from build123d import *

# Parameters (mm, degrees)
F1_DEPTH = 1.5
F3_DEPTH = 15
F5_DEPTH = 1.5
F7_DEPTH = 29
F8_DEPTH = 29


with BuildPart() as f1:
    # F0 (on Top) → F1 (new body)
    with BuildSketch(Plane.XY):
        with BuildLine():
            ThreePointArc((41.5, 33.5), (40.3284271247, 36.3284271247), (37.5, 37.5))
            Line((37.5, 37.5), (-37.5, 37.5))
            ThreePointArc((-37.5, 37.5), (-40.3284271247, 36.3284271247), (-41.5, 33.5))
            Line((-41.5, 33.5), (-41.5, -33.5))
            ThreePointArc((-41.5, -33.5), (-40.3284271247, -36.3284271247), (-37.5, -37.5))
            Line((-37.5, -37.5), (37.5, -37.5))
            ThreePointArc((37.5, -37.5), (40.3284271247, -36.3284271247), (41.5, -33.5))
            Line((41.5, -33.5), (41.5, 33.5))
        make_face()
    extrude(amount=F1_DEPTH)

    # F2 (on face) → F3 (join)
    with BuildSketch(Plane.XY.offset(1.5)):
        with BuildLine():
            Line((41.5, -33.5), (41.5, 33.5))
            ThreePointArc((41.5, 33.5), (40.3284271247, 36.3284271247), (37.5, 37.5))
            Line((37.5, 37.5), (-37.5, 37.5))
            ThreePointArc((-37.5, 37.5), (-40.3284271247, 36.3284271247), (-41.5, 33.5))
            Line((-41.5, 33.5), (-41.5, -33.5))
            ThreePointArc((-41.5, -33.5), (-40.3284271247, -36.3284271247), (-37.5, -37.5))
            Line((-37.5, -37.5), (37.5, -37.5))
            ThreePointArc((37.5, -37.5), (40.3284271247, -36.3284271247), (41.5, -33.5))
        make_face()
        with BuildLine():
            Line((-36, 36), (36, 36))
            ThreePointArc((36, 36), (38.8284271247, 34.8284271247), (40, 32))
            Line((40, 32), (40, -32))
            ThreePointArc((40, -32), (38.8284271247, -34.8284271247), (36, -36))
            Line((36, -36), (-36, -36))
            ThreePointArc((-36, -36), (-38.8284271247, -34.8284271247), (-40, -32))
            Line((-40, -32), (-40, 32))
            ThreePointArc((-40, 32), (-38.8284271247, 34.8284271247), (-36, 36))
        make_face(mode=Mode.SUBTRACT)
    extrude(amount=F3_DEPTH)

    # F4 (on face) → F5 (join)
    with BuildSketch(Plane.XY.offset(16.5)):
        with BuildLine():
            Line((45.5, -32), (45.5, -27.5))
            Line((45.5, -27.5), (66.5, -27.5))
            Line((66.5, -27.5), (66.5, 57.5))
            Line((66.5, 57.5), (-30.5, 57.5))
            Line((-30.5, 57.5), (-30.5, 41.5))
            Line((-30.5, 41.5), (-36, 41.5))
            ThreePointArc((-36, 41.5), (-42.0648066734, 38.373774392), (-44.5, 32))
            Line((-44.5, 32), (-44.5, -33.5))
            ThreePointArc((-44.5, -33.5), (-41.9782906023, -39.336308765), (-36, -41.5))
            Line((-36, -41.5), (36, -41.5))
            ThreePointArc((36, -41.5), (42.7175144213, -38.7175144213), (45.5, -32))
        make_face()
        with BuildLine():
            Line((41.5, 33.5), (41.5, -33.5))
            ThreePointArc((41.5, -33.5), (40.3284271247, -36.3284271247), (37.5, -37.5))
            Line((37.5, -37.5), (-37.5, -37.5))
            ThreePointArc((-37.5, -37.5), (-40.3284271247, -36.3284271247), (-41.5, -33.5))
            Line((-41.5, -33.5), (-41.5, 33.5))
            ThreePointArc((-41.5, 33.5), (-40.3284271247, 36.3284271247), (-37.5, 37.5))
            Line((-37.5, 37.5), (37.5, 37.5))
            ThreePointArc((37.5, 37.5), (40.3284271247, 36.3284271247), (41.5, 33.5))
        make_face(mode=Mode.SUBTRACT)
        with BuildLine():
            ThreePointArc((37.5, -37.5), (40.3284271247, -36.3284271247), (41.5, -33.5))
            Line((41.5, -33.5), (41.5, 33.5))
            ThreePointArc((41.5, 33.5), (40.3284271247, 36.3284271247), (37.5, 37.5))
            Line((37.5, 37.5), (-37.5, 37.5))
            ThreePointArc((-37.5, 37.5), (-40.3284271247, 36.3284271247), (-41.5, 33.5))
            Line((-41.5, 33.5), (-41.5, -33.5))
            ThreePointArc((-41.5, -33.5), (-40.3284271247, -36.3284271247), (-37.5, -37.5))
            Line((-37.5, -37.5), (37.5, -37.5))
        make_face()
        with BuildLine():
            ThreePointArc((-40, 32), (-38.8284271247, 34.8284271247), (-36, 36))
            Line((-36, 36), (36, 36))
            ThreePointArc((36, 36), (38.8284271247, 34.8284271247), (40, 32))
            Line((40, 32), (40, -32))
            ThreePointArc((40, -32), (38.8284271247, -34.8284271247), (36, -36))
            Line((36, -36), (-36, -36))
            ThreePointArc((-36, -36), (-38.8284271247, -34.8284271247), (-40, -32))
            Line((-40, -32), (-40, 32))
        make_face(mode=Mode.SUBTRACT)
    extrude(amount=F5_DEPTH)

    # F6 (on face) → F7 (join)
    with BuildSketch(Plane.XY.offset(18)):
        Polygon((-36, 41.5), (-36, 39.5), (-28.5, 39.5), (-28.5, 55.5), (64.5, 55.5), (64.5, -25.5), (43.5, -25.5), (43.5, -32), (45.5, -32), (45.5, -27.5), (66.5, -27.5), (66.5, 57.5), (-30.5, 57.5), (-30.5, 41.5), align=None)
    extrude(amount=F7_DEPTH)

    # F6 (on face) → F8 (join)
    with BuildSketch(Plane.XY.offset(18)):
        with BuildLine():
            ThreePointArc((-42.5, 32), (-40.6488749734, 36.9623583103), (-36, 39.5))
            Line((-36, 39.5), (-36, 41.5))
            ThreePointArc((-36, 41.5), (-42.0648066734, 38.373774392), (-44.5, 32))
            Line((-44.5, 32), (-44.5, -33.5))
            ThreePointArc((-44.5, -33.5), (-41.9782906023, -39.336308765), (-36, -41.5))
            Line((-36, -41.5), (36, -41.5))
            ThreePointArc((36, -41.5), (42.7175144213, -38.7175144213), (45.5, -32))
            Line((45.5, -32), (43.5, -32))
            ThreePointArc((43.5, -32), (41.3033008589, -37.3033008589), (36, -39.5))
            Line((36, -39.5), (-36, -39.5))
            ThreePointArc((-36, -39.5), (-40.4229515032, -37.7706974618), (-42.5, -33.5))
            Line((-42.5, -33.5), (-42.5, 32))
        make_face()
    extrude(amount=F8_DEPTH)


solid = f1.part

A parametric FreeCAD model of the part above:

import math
import FreeCAD as App
import Part
import Sketcher
from FreeCAD import Vector

doc = App.newDocument("Part")
params = doc.addObject("Spreadsheet::Sheet", "Params")
for row, (alias, value) in enumerate([
    ("sketch1_radius", "4 mm"),
    ("sketch1_width", "75 mm"),
    ("sketch1_height", "67 mm"),
    ("pad1_length", "1.5 mm"),
    ("sketch2_radius", "4 mm"),
    ("sketch2_width", "75 mm"),
    ("sketch2_width2", "72 mm"),
    ("sketch2_height", "67 mm"),
    ("sketch2_height2", "64 mm"),
    ("pad2_length", "15 mm"),
    ("sketch3_radius", "4 mm"),
    ("sketch3_radius2", "9.5 mm"),
    ("sketch3_width", "21 mm"),
    ("sketch3_width2", "97 mm"),
    ("sketch3_width3", "72 mm"),
    ("pad3_length", "1.5 mm"),
    ("sketch4_width", "93 mm"),
    ("sketch4_width2", "21 mm"),
    ("sketch4_width3", "2 mm"),
    ("sketch4_width4", "97 mm"),
    ("sketch4_height", "16 mm"),
    ("pad4_length", "29 mm"),
    ("sketch5_radius", "9.5 mm"),
    ("sketch5_radius2", "7.5 mm"),
    ("sketch5_width", "72 mm"),
    ("sketch5_height", "65.5 mm"),
    ("pad5_length", "29 mm"),
], start=1):
    params.set(f"A{row}", alias)
    params.set(f"B{row}", "=" + value)
    params.setAlias(f"B{row}", alias)

body = doc.addObject("PartDesign::Body", "Body")

# Sketch on XY plane
sketch1 = body.newObject("Sketcher::SketchObject", "Sketch")
sketch1.AttachmentSupport = (doc.getObject("XY_Plane"), [""])
sketch1.MapMode = "FlatFace"
sketch1.addGeometry(Part.ArcOfCircle(Part.Circle(Vector(37.5, 33.5, 0), Vector(0, 0, 1), 4), math.radians(0), math.radians(90)), False)
sketch1.addGeometry(Part.LineSegment(Vector(37.5, 37.5, 0), Vector(-37.5, 37.5, 0)), False)
sketch1.addGeometry(Part.ArcOfCircle(Part.Circle(Vector(-37.5, 33.5, 0), Vector(0, 0, 1), 4), math.radians(90), math.radians(180)), False)
sketch1.addGeometry(Part.LineSegment(Vector(-41.5, 33.5, 0), Vector(-41.5, -33.5, 0)), False)
sketch1.addGeometry(Part.ArcOfCircle(Part.Circle(Vector(-37.5, -33.5, 0), Vector(0, 0, 1), 4), math.radians(180), math.radians(270)), False)
sketch1.addGeometry(Part.LineSegment(Vector(-37.5, -37.5, 0), Vector(37.5, -37.5, 0)), False)
sketch1.addGeometry(Part.ArcOfCircle(Part.Circle(Vector(37.5, -33.5, 0), Vector(0, 0, 1), 4), math.radians(-90), math.radians(0)), False)
sketch1.addGeometry(Part.LineSegment(Vector(41.5, -33.5, 0), Vector(41.5, 33.5, 0)), False)
sketch1.addConstraint(Sketcher.Constraint("Tangent", 0, 2, 1, 1))
sketch1.addConstraint(Sketcher.Constraint("Tangent", 1, 2, 2, 1))
sketch1.addConstraint(Sketcher.Constraint("Tangent", 2, 2, 3, 1))
sketch1.addConstraint(Sketcher.Constraint("Tangent", 3, 2, 4, 1))
sketch1.addConstraint(Sketcher.Constraint("Tangent", 4, 2, 5, 1))
sketch1.addConstraint(Sketcher.Constraint("Tangent", 5, 2, 6, 1))
sketch1.addConstraint(Sketcher.Constraint("Tangent", 6, 2, 7, 1))
sketch1.addConstraint(Sketcher.Constraint("Tangent", 7, 2, 0, 1))
sketch1.addConstraint(Sketcher.Constraint("Horizontal", 1))
sketch1.addConstraint(Sketcher.Constraint("Vertical", 3))
sketch1.addConstraint(Sketcher.Constraint("Horizontal", 5))
sketch1.addConstraint(Sketcher.Constraint("Vertical", 7))
sketch1.addConstraint(Sketcher.Constraint("Equal", 0, 2))
sketch1.addConstraint(Sketcher.Constraint("Equal", 2, 4))
sketch1.addConstraint(Sketcher.Constraint("Equal", 4, 6))
sketch1.addConstraint(Sketcher.Constraint("Symmetric", 0, 3, 4, 3, -1, 1))
sketch1.addConstraint(Sketcher.Constraint("Radius", 0, 4.0))
sketch1.addConstraint(Sketcher.Constraint("DistanceX", 1, 2, 1, 1, 75.0))
sketch1.addConstraint(Sketcher.Constraint("DistanceY", 3, 2, 3, 1, 67.0))
sketch1.setExpression("Constraints[16]", "Params.sketch1_radius")
sketch1.setExpression("Constraints[17]", "Params.sketch1_width")
sketch1.setExpression("Constraints[18]", "Params.sketch1_height")
pad1 = body.newObject("PartDesign::Pad", "Pad")
pad1.Profile = sketch1
pad1.setExpression("Length", "Params.pad1_length")

# Sketch on XY plane
sketch2 = body.newObject("Sketcher::SketchObject", "Sketch001")
sketch2.AttachmentSupport = (doc.getObject("XY_Plane"), [""])
sketch2.MapMode = "FlatFace"
sketch2.AttachmentOffset = App.Placement(Vector(0, 0, 1.5), App.Rotation())
sketch2.addGeometry(Part.LineSegment(Vector(41.5, -33.5, 0), Vector(41.5, 33.5, 0)), False)
sketch2.addGeometry(Part.ArcOfCircle(Part.Circle(Vector(37.5, 33.5, 0), Vector(0, 0, 1), 4), math.radians(0), math.radians(90)), False)
sketch2.addGeometry(Part.LineSegment(Vector(37.5, 37.5, 0), Vector(-37.5, 37.5, 0)), False)
sketch2.addGeometry(Part.ArcOfCircle(Part.Circle(Vector(-37.5, 33.5, 0), Vector(0, 0, 1), 4), math.radians(90), math.radians(180)), False)
sketch2.addGeometry(Part.LineSegment(Vector(-41.5, 33.5, 0), Vector(-41.5, -33.5, 0)), False)
sketch2.addGeometry(Part.ArcOfCircle(Part.Circle(Vector(-37.5, -33.5, 0), Vector(0, 0, 1), 4), math.radians(180), math.radians(270)), False)
sketch2.addGeometry(Part.LineSegment(Vector(-37.5, -37.5, 0), Vector(37.5, -37.5, 0)), False)
sketch2.addGeometry(Part.ArcOfCircle(Part.Circle(Vector(37.5, -33.5, 0), Vector(0, 0, 1), 4), math.radians(-90), math.radians(0)), False)
sketch2.addGeometry(Part.ArcOfCircle(Part.Circle(Vector(-36, 32, 0), Vector(0, 0, 1), 4), math.radians(90), math.radians(180)), False)
sketch2.addGeometry(Part.LineSegment(Vector(-36, 36, 0), Vector(36, 36, 0)), False)
sketch2.addGeometry(Part.ArcOfCircle(Part.Circle(Vector(36, 32, 0), Vector(0, 0, 1), 4), math.radians(0), math.radians(90)), False)
sketch2.addGeometry(Part.LineSegment(Vector(40, 32, 0), Vector(40, -32, 0)), False)
sketch2.addGeometry(Part.ArcOfCircle(Part.Circle(Vector(36, -32, 0), Vector(0, 0, 1), 4), math.radians(-90), math.radians(0)), False)
sketch2.addGeometry(Part.LineSegment(Vector(36, -36, 0), Vector(-36, -36, 0)), False)
sketch2.addGeometry(Part.ArcOfCircle(Part.Circle(Vector(-36, -32, 0), Vector(0, 0, 1), 4), math.radians(180), math.radians(270)), False)
sketch2.addGeometry(Part.LineSegment(Vector(-40, -32, 0), Vector(-40, 32, 0)), False)
sketch2.addConstraint(Sketcher.Constraint("Tangent", 0, 2, 1, 1))
sketch2.addConstraint(Sketcher.Constraint("Tangent", 1, 2, 2, 1))
sketch2.addConstraint(Sketcher.Constraint("Tangent", 2, 2, 3, 1))
sketch2.addConstraint(Sketcher.Constraint("Tangent", 3, 2, 4, 1))
sketch2.addConstraint(Sketcher.Constraint("Tangent", 4, 2, 5, 1))
sketch2.addConstraint(Sketcher.Constraint("Tangent", 5, 2, 6, 1))
sketch2.addConstraint(Sketcher.Constraint("Tangent", 6, 2, 7, 1))
sketch2.addConstraint(Sketcher.Constraint("Tangent", 7, 2, 0, 1))
sketch2.addConstraint(Sketcher.Constraint("Tangent", 8, 1, 9, 1))
sketch2.addConstraint(Sketcher.Constraint("Tangent", 9, 2, 10, 2))
sketch2.addConstraint(Sketcher.Constraint("Tangent", 10, 1, 11, 1))
sketch2.addConstraint(Sketcher.Constraint("Tangent", 11, 2, 12, 2))
sketch2.addConstraint(Sketcher.Constraint("Tangent", 12, 1, 13, 1))
sketch2.addConstraint(Sketcher.Constraint("Tangent", 13, 2, 14, 2))
sketch2.addConstraint(Sketcher.Constraint("Tangent", 14, 1, 15, 1))
sketch2.addConstraint(Sketcher.Constraint("Tangent", 15, 2, 8, 2))
sketch2.addConstraint(Sketcher.Constraint("Vertical", 0))
sketch2.addConstraint(Sketcher.Constraint("Horizontal", 2))
sketch2.addConstraint(Sketcher.Constraint("Vertical", 4))
sketch2.addConstraint(Sketcher.Constraint("Horizontal", 6))
sketch2.addConstraint(Sketcher.Constraint("Horizontal", 9))
sketch2.addConstraint(Sketcher.Constraint("Vertical", 11))
sketch2.addConstraint(Sketcher.Constraint("Horizontal", 13))
sketch2.addConstraint(Sketcher.Constraint("Vertical", 15))
sketch2.addConstraint(Sketcher.Constraint("Equal", 1, 3))
sketch2.addConstraint(Sketcher.Constraint("Equal", 3, 5))
sketch2.addConstraint(Sketcher.Constraint("Equal", 5, 7))
sketch2.addConstraint(Sketcher.Constraint("Equal", 7, 8))
sketch2.addConstraint(Sketcher.Constraint("Equal", 8, 10))
sketch2.addConstraint(Sketcher.Constraint("Equal", 10, 12))
sketch2.addConstraint(Sketcher.Constraint("Equal", 12, 14))
sketch2.addConstraint(Sketcher.Constraint("Symmetric", 1, 3, 5, 3, -1, 1))
sketch2.addConstraint(Sketcher.Constraint("Symmetric", 8, 3, 12, 3, -1, 1))
sketch2.addConstraint(Sketcher.Constraint("Radius", 1, 4.0))
sketch2.addConstraint(Sketcher.Constraint("DistanceX", 2, 2, 2, 1, 75.0))
sketch2.addConstraint(Sketcher.Constraint("DistanceX", 9, 1, 9, 2, 72.0))
sketch2.addConstraint(Sketcher.Constraint("DistanceY", 0, 1, 0, 2, 67.0))
sketch2.addConstraint(Sketcher.Constraint("DistanceY", 11, 2, 11, 1, 64.0))
sketch2.setExpression("Constraints[33]", "Params.sketch2_radius")
sketch2.setExpression("Constraints[34]", "Params.sketch2_width")
sketch2.setExpression("Constraints[35]", "Params.sketch2_width2")
sketch2.setExpression("Constraints[36]", "Params.sketch2_height")
sketch2.setExpression("Constraints[37]", "Params.sketch2_height2")
pad2 = body.newObject("PartDesign::Pad", "Pad001")
pad2.Profile = sketch2
pad2.setExpression("Length", "Params.pad2_length")

# Sketch on XY plane
sketch3 = body.newObject("Sketcher::SketchObject", "Sketch002")
sketch3.AttachmentSupport = (doc.getObject("XY_Plane"), [""])
sketch3.MapMode = "FlatFace"
sketch3.AttachmentOffset = App.Placement(Vector(0, 0, 16.5), App.Rotation())
sketch3.addGeometry(Part.LineSegment(Vector(45.5, -32, 0), Vector(45.5, -27.5, 0)), False)
sketch3.addGeometry(Part.LineSegment(Vector(45.5, -27.5, 0), Vector(66.5, -27.5, 0)), False)
sketch3.addGeometry(Part.LineSegment(Vector(66.5, -27.5, 0), Vector(66.5, 57.5, 0)), False)
sketch3.addGeometry(Part.LineSegment(Vector(66.5, 57.5, 0), Vector(-30.5, 57.5, 0)), False)
sketch3.addGeometry(Part.LineSegment(Vector(-30.5, 57.5, 0), Vector(-30.5, 41.5, 0)), False)
sketch3.addGeometry(Part.LineSegment(Vector(-30.5, 41.5, 0), Vector(-36, 41.5, 0)), False)
sketch3.addGeometry(Part.ArcOfCircle(Part.Circle(Vector(-34.9, 32, 0), Vector(0, 0, 1), 9.6), math.radians(96), math.radians(180)), False)
sketch3.addGeometry(Part.LineSegment(Vector(-44.5, 32, 0), Vector(-44.5, -33.5, 0)), False)
sketch3.addGeometry(Part.ArcOfCircle(Part.Circle(Vector(-36.5, -33.5, 0), Vector(0, 0, 1), 8), math.radians(180), math.radians(273)), False)
sketch3.addGeometry(Part.LineSegment(Vector(-36, -41.5, 0), Vector(36, -41.5, 0)), False)
sketch3.addGeometry(Part.ArcOfCircle(Part.Circle(Vector(36, -32, 0), Vector(0, 0, 1), 9.5), math.radians(-90), math.radians(0)), False)
sketch3.addGeometry(Part.LineSegment(Vector(-40, -32, 0), Vector(-40, 32, 0)), False)
sketch3.addGeometry(Part.ArcOfCircle(Part.Circle(Vector(-36, 32, 0), Vector(0, 0, 1), 4), math.radians(90), math.radians(180)), False)
sketch3.addGeometry(Part.LineSegment(Vector(-36, 36, 0), Vector(36, 36, 0)), False)
sketch3.addGeometry(Part.ArcOfCircle(Part.Circle(Vector(36, 32, 0), Vector(0, 0, 1), 4), math.radians(0), math.radians(90)), False)
sketch3.addGeometry(Part.LineSegment(Vector(40, 32, 0), Vector(40, -32, 0)), False)
sketch3.addGeometry(Part.ArcOfCircle(Part.Circle(Vector(36, -32, 0), Vector(0, 0, 1), 4), math.radians(-90), math.radians(0)), False)
sketch3.addGeometry(Part.LineSegment(Vector(36, -36, 0), Vector(-36, -36, 0)), False)
sketch3.addGeometry(Part.ArcOfCircle(Part.Circle(Vector(-36, -32, 0), Vector(0, 0, 1), 4), math.radians(180), math.radians(270)), False)
sketch3.addConstraint(Sketcher.Constraint("Coincident", 0, 2, 1, 1))
sketch3.addConstraint(Sketcher.Constraint("Coincident", 1, 2, 2, 1))
sketch3.addConstraint(Sketcher.Constraint("Coincident", 2, 2, 3, 1))
sketch3.addConstraint(Sketcher.Constraint("Coincident", 3, 2, 4, 1))
sketch3.addConstraint(Sketcher.Constraint("Coincident", 4, 2, 5, 1))
sketch3.addConstraint(Sketcher.Constraint("Coincident", 5, 2, 6, 1))
sketch3.addConstraint(Sketcher.Constraint("Tangent", 6, 2, 7, 1))
sketch3.addConstraint(Sketcher.Constraint("Tangent", 7, 2, 8, 1))
sketch3.addConstraint(Sketcher.Constraint("Coincident", 8, 2, 9, 1))
sketch3.addConstraint(Sketcher.Constraint("Tangent", 9, 2, 10, 1))
sketch3.addConstraint(Sketcher.Constraint("Tangent", 10, 2, 0, 1))
sketch3.addConstraint(Sketcher.Constraint("Tangent", 11, 2, 12, 2))
sketch3.addConstraint(Sketcher.Constraint("Tangent", 12, 1, 13, 1))
sketch3.addConstraint(Sketcher.Constraint("Tangent", 13, 2, 14, 2))
sketch3.addConstraint(Sketcher.Constraint("Tangent", 14, 1, 15, 1))
sketch3.addConstraint(Sketcher.Constraint("Tangent", 15, 2, 16, 2))
sketch3.addConstraint(Sketcher.Constraint("Tangent", 16, 1, 17, 1))
sketch3.addConstraint(Sketcher.Constraint("Tangent", 17, 2, 18, 2))
sketch3.addConstraint(Sketcher.Constraint("Tangent", 18, 1, 11, 1))
sketch3.addConstraint(Sketcher.Constraint("Vertical", 0))
sketch3.addConstraint(Sketcher.Constraint("Horizontal", 1))
sketch3.addConstraint(Sketcher.Constraint("Vertical", 2))
sketch3.addConstraint(Sketcher.Constraint("Horizontal", 3))
sketch3.addConstraint(Sketcher.Constraint("Vertical", 4))
sketch3.addConstraint(Sketcher.Constraint("Horizontal", 5))
sketch3.addConstraint(Sketcher.Constraint("Vertical", 7))
sketch3.addConstraint(Sketcher.Constraint("Horizontal", 9))
sketch3.addConstraint(Sketcher.Constraint("Vertical", 11))
sketch3.addConstraint(Sketcher.Constraint("Horizontal", 13))
sketch3.addConstraint(Sketcher.Constraint("Vertical", 15))
sketch3.addConstraint(Sketcher.Constraint("Horizontal", 17))
sketch3.addConstraint(Sketcher.Constraint("Coincident", 16, 3, 10, 3))
sketch3.addConstraint(Sketcher.Constraint("Equal", 12, 14))
sketch3.addConstraint(Sketcher.Constraint("Equal", 14, 16))
sketch3.addConstraint(Sketcher.Constraint("Equal", 16, 18))
sketch3.addConstraint(Sketcher.Constraint("Symmetric", 10, 3, 12, 3, -1, 1))
sketch3.addConstraint(Sketcher.Constraint("Symmetric", 5, 2, 9, 2, -1, 1))
sketch3.addConstraint(Sketcher.Constraint("Horizontal", 6, 3, 12, 3))
sketch3.addConstraint(Sketcher.Constraint("Vertical", 5, 2, 8, 2))
sketch3.addConstraint(Sketcher.Constraint("Radius", 12, 4.0))
sketch3.addConstraint(Sketcher.Constraint("Radius", 10, 9.5))
sketch3.addConstraint(Sketcher.Constraint("DistanceX", 1, 1, 1, 2, 21.0))
sketch3.addConstraint(Sketcher.Constraint("DistanceX", 3, 2, 3, 1, 97.0))
sketch3.addConstraint(Sketcher.Constraint("DistanceX", 9, 1, 9, 2, 72.0))
sketch3.addConstraint(Sketcher.Constraint("DistanceY", 2, 1, 2, 2, 85.0))
sketch3.addConstraint(Sketcher.Constraint("DistanceY", 4, 2, 4, 1, 16.0))
sketch3.addConstraint(Sketcher.Constraint("DistanceY", 11, 1, 11, 2, 64.0))
sketch3.addConstraint(Sketcher.Constraint("DistanceY", 7, 2, 7, 1, 65.5))
sketch3.addConstraint(Sketcher.Constraint("DistanceX", 6, 2, 4, 2, 14.0))
sketch3.setExpression("Constraints[39]", "Params.sketch3_radius")
sketch3.setExpression("Constraints[40]", "Params.sketch3_radius2")
sketch3.setExpression("Constraints[41]", "Params.sketch3_width")
sketch3.setExpression("Constraints[42]", "Params.sketch3_width2")
sketch3.setExpression("Constraints[43]", "Params.sketch3_width3")
pad3 = body.newObject("PartDesign::Pad", "Pad002")
pad3.Profile = sketch3
pad3.setExpression("Length", "Params.pad3_length")

# Sketch on XY plane
sketch4 = body.newObject("Sketcher::SketchObject", "Sketch003")
sketch4.AttachmentSupport = (doc.getObject("XY_Plane"), [""])
sketch4.MapMode = "FlatFace"
sketch4.AttachmentOffset = App.Placement(Vector(0, 0, 18), App.Rotation())
sketch4.addGeometry(Part.LineSegment(Vector(-36, 41.5, 0), Vector(-36, 39.5, 0)), False)
sketch4.addGeometry(Part.LineSegment(Vector(-36, 39.5, 0), Vector(-28.5, 39.5, 0)), False)
sketch4.addGeometry(Part.LineSegment(Vector(-28.5, 39.5, 0), Vector(-28.5, 55.5, 0)), False)
sketch4.addGeometry(Part.LineSegment(Vector(-28.5, 55.5, 0), Vector(64.5, 55.5, 0)), False)
sketch4.addGeometry(Part.LineSegment(Vector(64.5, 55.5, 0), Vector(64.5, -25.5, 0)), False)
sketch4.addGeometry(Part.LineSegment(Vector(64.5, -25.5, 0), Vector(43.5, -25.5, 0)), False)
sketch4.addGeometry(Part.LineSegment(Vector(43.5, -25.5, 0), Vector(43.5, -32, 0)), False)
sketch4.addGeometry(Part.LineSegment(Vector(43.5, -32, 0), Vector(45.5, -32, 0)), False)
sketch4.addGeometry(Part.LineSegment(Vector(45.5, -32, 0), Vector(45.5, -27.5, 0)), False)
sketch4.addGeometry(Part.LineSegment(Vector(45.5, -27.5, 0), Vector(66.5, -27.5, 0)), False)
sketch4.addGeometry(Part.LineSegment(Vector(66.5, -27.5, 0), Vector(66.5, 57.5, 0)), False)
sketch4.addGeometry(Part.LineSegment(Vector(66.5, 57.5, 0), Vector(-30.5, 57.5, 0)), False)
sketch4.addGeometry(Part.LineSegment(Vector(-30.5, 57.5, 0), Vector(-30.5, 41.5, 0)), False)
sketch4.addGeometry(Part.LineSegment(Vector(-30.5, 41.5, 0), Vector(-36, 41.5, 0)), False)
sketch4.addConstraint(Sketcher.Constraint("Coincident", 0, 2, 1, 1))
sketch4.addConstraint(Sketcher.Constraint("Coincident", 1, 2, 2, 1))
sketch4.addConstraint(Sketcher.Constraint("Coincident", 2, 2, 3, 1))
sketch4.addConstraint(Sketcher.Constraint("Coincident", 3, 2, 4, 1))
sketch4.addConstraint(Sketcher.Constraint("Coincident", 4, 2, 5, 1))
sketch4.addConstraint(Sketcher.Constraint("Coincident", 5, 2, 6, 1))
sketch4.addConstraint(Sketcher.Constraint("Coincident", 6, 2, 7, 1))
sketch4.addConstraint(Sketcher.Constraint("Coincident", 7, 2, 8, 1))
sketch4.addConstraint(Sketcher.Constraint("Coincident", 8, 2, 9, 1))
sketch4.addConstraint(Sketcher.Constraint("Coincident", 9, 2, 10, 1))
sketch4.addConstraint(Sketcher.Constraint("Coincident", 10, 2, 11, 1))
sketch4.addConstraint(Sketcher.Constraint("Coincident", 11, 2, 12, 1))
sketch4.addConstraint(Sketcher.Constraint("Coincident", 12, 2, 13, 1))
sketch4.addConstraint(Sketcher.Constraint("Coincident", 13, 2, 0, 1))
sketch4.addConstraint(Sketcher.Constraint("Vertical", 0))
sketch4.addConstraint(Sketcher.Constraint("Horizontal", 1))
sketch4.addConstraint(Sketcher.Constraint("Vertical", 2))
sketch4.addConstraint(Sketcher.Constraint("Horizontal", 3))
sketch4.addConstraint(Sketcher.Constraint("Vertical", 4))
sketch4.addConstraint(Sketcher.Constraint("Horizontal", 5))
sketch4.addConstraint(Sketcher.Constraint("Vertical", 6))
sketch4.addConstraint(Sketcher.Constraint("Horizontal", 7))
sketch4.addConstraint(Sketcher.Constraint("Vertical", 8))
sketch4.addConstraint(Sketcher.Constraint("Horizontal", 9))
sketch4.addConstraint(Sketcher.Constraint("Vertical", 10))
sketch4.addConstraint(Sketcher.Constraint("Horizontal", 11))
sketch4.addConstraint(Sketcher.Constraint("Vertical", 12))
sketch4.addConstraint(Sketcher.Constraint("Horizontal", 13))
sketch4.addConstraint(Sketcher.Constraint("Equal", 5, 9))
sketch4.addConstraint(Sketcher.Constraint("Equal", 7, 0))
sketch4.addConstraint(Sketcher.Constraint("Equal", 2, 12))
sketch4.addConstraint(Sketcher.Constraint("DistanceX", 3, 1, 3, 2, 93.0))
sketch4.addConstraint(Sketcher.Constraint("DistanceX", 5, 2, 5, 1, 21.0))
sketch4.addConstraint(Sketcher.Constraint("DistanceX", 7, 1, 7, 2, 2.0))
sketch4.addConstraint(Sketcher.Constraint("DistanceX", 11, 2, 11, 1, 97.0))
sketch4.addConstraint(Sketcher.Constraint("DistanceY", 2, 1, 2, 2, 16.0))
sketch4.addConstraint(Sketcher.Constraint("DistanceY", 4, 2, 4, 1, 81.0))
sketch4.addConstraint(Sketcher.Constraint("DistanceY", 10, 1, 10, 2, 85.0))
sketch4.addConstraint(Sketcher.Constraint("DistanceX", 1, 1, 1, 2, 7.5))
sketch4.addConstraint(Sketcher.Constraint("DistanceY", 6, 2, 6, 1, 6.5))
sketch4.addConstraint(Sketcher.Constraint("DistanceX", 0, 2, -1, 1, 36.0))
sketch4.addConstraint(Sketcher.Constraint("DistanceY", 6, 2, -1, 1, 32.0))
sketch4.setExpression("Constraints[31]", "Params.sketch4_width")
sketch4.setExpression("Constraints[32]", "Params.sketch4_width2")
sketch4.setExpression("Constraints[33]", "Params.sketch4_width3")
sketch4.setExpression("Constraints[34]", "Params.sketch4_width4")
sketch4.setExpression("Constraints[35]", "Params.sketch4_height")
pad4 = body.newObject("PartDesign::Pad", "Pad003")
pad4.Profile = sketch4
pad4.setExpression("Length", "Params.pad4_length")

# Sketch on XY plane
sketch5 = body.newObject("Sketcher::SketchObject", "Sketch004")
sketch5.AttachmentSupport = (doc.getObject("XY_Plane"), [""])
sketch5.MapMode = "FlatFace"
sketch5.AttachmentOffset = App.Placement(Vector(0, 0, 18), App.Rotation())
sketch5.addGeometry(Part.ArcOfCircle(Part.Circle(Vector(-34.9, 32, 0), Vector(0, 0, 1), 7.6), math.radians(98), math.radians(180)), False)
sketch5.addGeometry(Part.LineSegment(Vector(-36, 39.5, 0), Vector(-36, 41.5, 0)), False)
sketch5.addGeometry(Part.ArcOfCircle(Part.Circle(Vector(-34.9, 32, 0), Vector(0, 0, 1), 9.6), math.radians(96), math.radians(180)), False)
sketch5.addGeometry(Part.LineSegment(Vector(-44.5, 32, 0), Vector(-44.5, -33.5, 0)), False)
sketch5.addGeometry(Part.ArcOfCircle(Part.Circle(Vector(-36.5, -33.5, 0), Vector(0, 0, 1), 8), math.radians(180), math.radians(273)), False)
sketch5.addGeometry(Part.LineSegment(Vector(-36, -41.5, 0), Vector(36, -41.5, 0)), False)
sketch5.addGeometry(Part.ArcOfCircle(Part.Circle(Vector(36, -32, 0), Vector(0, 0, 1), 9.5), math.radians(-90), math.radians(0)), False)
sketch5.addGeometry(Part.LineSegment(Vector(45.5, -32, 0), Vector(43.5, -32, 0)), False)
sketch5.addGeometry(Part.ArcOfCircle(Part.Circle(Vector(36, -32, 0), Vector(0, 0, 1), 7.5), math.radians(-90), math.radians(0)), False)
sketch5.addGeometry(Part.LineSegment(Vector(36, -39.5, 0), Vector(-36, -39.5, 0)), False)
sketch5.addGeometry(Part.ArcOfCircle(Part.Circle(Vector(-36, -33, 0), Vector(0, 0, 1), 6.5), math.radians(-175), math.radians(-90)), False)
sketch5.addGeometry(Part.LineSegment(Vector(-42.5, -33.5, 0), Vector(-42.5, 32, 0)), False)
sketch5.addConstraint(Sketcher.Constraint("Coincident", 0, 1, 1, 1))
sketch5.addConstraint(Sketcher.Constraint("Coincident", 1, 2, 2, 1))
sketch5.addConstraint(Sketcher.Constraint("Tangent", 2, 2, 3, 1))
sketch5.addConstraint(Sketcher.Constraint("Tangent", 3, 2, 4, 1))
sketch5.addConstraint(Sketcher.Constraint("Coincident", 4, 2, 5, 1))
sketch5.addConstraint(Sketcher.Constraint("Tangent", 5, 2, 6, 1))
sketch5.addConstraint(Sketcher.Constraint("Coincident", 6, 2, 7, 1))
sketch5.addConstraint(Sketcher.Constraint("Coincident", 7, 2, 8, 2))
sketch5.addConstraint(Sketcher.Constraint("Tangent", 8, 1, 9, 1))
sketch5.addConstraint(Sketcher.Constraint("Tangent", 9, 2, 10, 2))
sketch5.addConstraint(Sketcher.Constraint("Coincident", 10, 1, 11, 1))
sketch5.addConstraint(Sketcher.Constraint("Tangent", 11, 2, 0, 2))
sketch5.addConstraint(Sketcher.Constraint("Vertical", 1))
sketch5.addConstraint(Sketcher.Constraint("Vertical", 3))
sketch5.addConstraint(Sketcher.Constraint("Horizontal", 5))
sketch5.addConstraint(Sketcher.Constraint("Horizontal", 7))
sketch5.addConstraint(Sketcher.Constraint("Horizontal", 9))
sketch5.addConstraint(Sketcher.Constraint("Vertical", 11))
sketch5.addConstraint(Sketcher.Constraint("Coincident", 8, 3, 6, 3))
sketch5.addConstraint(Sketcher.Constraint("Symmetric", 1, 2, 5, 2, -1, 1))
sketch5.addConstraint(Sketcher.Constraint("Symmetric", 0, 1, 9, 2, -1))
sketch5.addConstraint(Sketcher.Constraint("Horizontal", 0, 3, 2, 3))
sketch5.addConstraint(Sketcher.Constraint("Horizontal", 8, 3, 6, 2))
sketch5.addConstraint(Sketcher.Constraint("Horizontal", 3, 2, 10, 1))
sketch5.addConstraint(Sketcher.Constraint("Vertical", 1, 2, 4, 2))
sketch5.addConstraint(Sketcher.Constraint("Radius", 6, 9.5))
sketch5.addConstraint(Sketcher.Constraint("Radius", 8, 7.5))
sketch5.addConstraint(Sketcher.Constraint("DistanceX", 5, 1, 5, 2, 72.0))
sketch5.addConstraint(Sketcher.Constraint("DistanceY", 3, 2, 3, 1, 65.5))
sketch5.addConstraint(Sketcher.Constraint("DistanceY", -1, 1, 0, 3, 32.0))
sketch5.addConstraint(Sketcher.Constraint("DistanceY", 6, 3, -1, 1, 32.0))
sketch5.addConstraint(Sketcher.Constraint("DistanceX", 3, 2, 10, 1, 2.0))
sketch5.addConstraint(Sketcher.Constraint("DistanceX", 2, 2, -1, 1, 44.5))
sketch5.setExpression("Constraints[25]", "Params.sketch5_radius")
sketch5.setExpression("Constraints[26]", "Params.sketch5_radius2")
sketch5.setExpression("Constraints[27]", "Params.sketch5_width")
sketch5.setExpression("Constraints[28]", "Params.sketch5_height")
pad5 = body.newObject("PartDesign::Pad", "Pad004")
pad5.Profile = sketch5
pad5.setExpression("Length", "Params.pad5_length")

doc.recompute()
